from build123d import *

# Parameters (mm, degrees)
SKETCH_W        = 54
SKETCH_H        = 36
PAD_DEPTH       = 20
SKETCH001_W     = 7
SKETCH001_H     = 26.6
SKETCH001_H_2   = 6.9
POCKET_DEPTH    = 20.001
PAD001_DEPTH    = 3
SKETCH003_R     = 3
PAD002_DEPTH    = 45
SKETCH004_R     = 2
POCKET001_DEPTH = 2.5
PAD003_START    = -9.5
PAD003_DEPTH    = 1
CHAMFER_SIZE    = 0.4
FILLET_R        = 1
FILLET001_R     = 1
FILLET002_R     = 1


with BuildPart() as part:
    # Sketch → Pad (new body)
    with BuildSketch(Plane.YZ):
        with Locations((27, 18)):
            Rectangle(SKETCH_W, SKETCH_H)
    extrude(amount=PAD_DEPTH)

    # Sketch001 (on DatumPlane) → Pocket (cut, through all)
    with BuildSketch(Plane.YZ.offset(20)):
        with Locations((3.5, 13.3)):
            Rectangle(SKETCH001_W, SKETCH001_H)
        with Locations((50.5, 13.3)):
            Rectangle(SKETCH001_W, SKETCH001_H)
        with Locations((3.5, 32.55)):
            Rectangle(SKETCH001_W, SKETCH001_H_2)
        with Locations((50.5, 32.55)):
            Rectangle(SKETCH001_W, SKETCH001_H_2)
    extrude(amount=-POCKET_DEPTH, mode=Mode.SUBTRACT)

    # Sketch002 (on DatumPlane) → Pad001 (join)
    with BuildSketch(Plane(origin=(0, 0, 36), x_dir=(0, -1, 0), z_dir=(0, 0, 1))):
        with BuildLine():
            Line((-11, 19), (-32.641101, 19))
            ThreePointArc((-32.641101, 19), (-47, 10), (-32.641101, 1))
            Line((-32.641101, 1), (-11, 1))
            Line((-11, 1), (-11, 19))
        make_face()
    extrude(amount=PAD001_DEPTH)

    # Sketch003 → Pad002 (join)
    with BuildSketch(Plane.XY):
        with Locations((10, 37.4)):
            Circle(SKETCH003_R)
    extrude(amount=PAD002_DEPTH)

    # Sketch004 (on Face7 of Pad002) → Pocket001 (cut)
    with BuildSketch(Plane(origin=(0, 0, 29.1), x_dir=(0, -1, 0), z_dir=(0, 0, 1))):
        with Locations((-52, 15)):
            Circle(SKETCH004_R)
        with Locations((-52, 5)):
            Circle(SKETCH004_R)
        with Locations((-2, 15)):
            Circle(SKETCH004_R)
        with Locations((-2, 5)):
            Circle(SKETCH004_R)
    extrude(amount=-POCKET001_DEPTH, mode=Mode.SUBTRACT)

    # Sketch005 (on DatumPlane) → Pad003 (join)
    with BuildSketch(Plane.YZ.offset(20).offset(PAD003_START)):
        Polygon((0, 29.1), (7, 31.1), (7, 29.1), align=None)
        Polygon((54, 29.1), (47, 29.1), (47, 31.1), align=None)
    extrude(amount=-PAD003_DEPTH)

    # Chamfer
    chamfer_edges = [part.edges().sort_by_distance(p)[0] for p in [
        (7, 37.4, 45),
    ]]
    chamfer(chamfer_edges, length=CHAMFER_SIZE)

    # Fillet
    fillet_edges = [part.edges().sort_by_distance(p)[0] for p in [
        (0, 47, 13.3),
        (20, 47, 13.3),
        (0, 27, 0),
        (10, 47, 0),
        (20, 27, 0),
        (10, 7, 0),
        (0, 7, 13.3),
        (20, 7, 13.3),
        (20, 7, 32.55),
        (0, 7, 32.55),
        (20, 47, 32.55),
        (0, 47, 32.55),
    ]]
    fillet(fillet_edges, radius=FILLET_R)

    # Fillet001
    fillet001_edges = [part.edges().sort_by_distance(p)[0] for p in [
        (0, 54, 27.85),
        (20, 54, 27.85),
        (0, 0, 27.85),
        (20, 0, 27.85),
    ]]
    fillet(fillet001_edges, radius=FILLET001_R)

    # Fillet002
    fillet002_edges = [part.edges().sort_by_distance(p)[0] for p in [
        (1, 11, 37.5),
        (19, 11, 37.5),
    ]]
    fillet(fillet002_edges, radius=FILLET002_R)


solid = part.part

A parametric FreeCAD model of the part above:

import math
import FreeCAD as App
import Part
import Sketcher
Q = App.Units.Quantity


def edges_at(feature, points):
    """Names of the edges that pass closest to the given points."""
    edges = feature.Shape.Edges
    near = lambda p: min(range(len(edges)), key=lambda i: edges[i].distToShape(Part.Vertex(*p))[0])
    return sorted({f"Edge{near(p) + 1}" for p in points})

doc = App.newDocument("Part")
params = doc.addObject("Spreadsheet::Sheet", "Params")
for row, (alias, value) in enumerate([
    ("sketch1_width", "54 mm"),
    ("sketch1_height", "36 mm"),
    ("pad1_length", "20 mm"),
    ("sketch2_width", "7 mm"),
    ("sketch2_height", "26.6 mm"),
    ("sketch2_height2", "6.9 mm"),
    ("sketch3_radius", "10 mm"),
    ("sketch3_width", "18 mm"),
    ("pad2_length", "3 mm"),
    ("sketch4_diameter", "6 mm"),
    ("pad3_length", "45 mm"),
    ("sketch5_diameter", "4 mm"),
    ("pocket2_length", "2.5 mm"),
    ("sketch6_width", "7 mm"),
    ("sketch6_height", "2 mm"),
    ("pad4_length", "1 mm"),
    ("chamfer_size", "0.4 mm"),
    ("fillet_radius", "1 mm"),
    ("fillet2_radius", "1 mm"),
    ("fillet3_radius", "1 mm"),
], start=1):
    params.set(f"A{row}", alias)
    params.set(f"B{row}", "=" + value)
    params.setAlias(f"B{row}", alias)

body = doc.addObject("PartDesign::Body", "Body")

sketch1 = doc.addObject("Sketcher::SketchObject", "Sketch")
body.addObject(sketch1)
sketch1.AttachmentSupport = (doc.YZ_Plane, [""])
sketch1.MapMode = "FlatFace"
sketch1.addGeometry([
    Part.LineSegment(App.Vector(0, 36, 0), App.Vector(0, 0, 0)),
    Part.LineSegment(App.Vector(0, 0, 0), App.Vector(54, 0, 0)),
    Part.LineSegment(App.Vector(54, 0, 0), App.Vector(54, 36, 0)),
    Part.LineSegment(App.Vector(54, 36, 0), App.Vector(0, 36, 0)),
], False)
sketch1.addConstraint([
    Sketcher.Constraint("Coincident", 0, 2, 1, 1),
    Sketcher.Constraint("Coincident", 1, 2, 2, 1),
    Sketcher.Constraint("Coincident", 2, 2, 3, 1),
    Sketcher.Constraint("Coincident", 3, 2, 0, 1),
    Sketcher.Constraint("Vertical", 0),
    Sketcher.Constraint("Horizontal", 1),
    Sketcher.Constraint("Vertical", 2),
    Sketcher.Constraint("Horizontal", 3),
    Sketcher.Constraint("Coincident", 0, 2, -1, 1),
    Sketcher.Constraint("DistanceX", 1, 1, 1, 2, Q("54 mm")),
    Sketcher.Constraint("DistanceY", 0, 2, 0, 1, Q("36 mm")),
])
sketch1.setExpression("Constraints[9]", "Params.sketch1_width")
sketch1.setExpression("Constraints[10]", "Params.sketch1_height")
pad1 = doc.addObject("PartDesign::Pad", "Pad")
body.addObject(pad1)
pad1.Profile = sketch1
pad1.setExpression("Length", "Params.pad1_length")

sketch2 = doc.addObject("Sketcher::SketchObject", "Sketch001")
body.addObject(sketch2)
sketch2.AttachmentSupport = (doc.YZ_Plane, [""])
sketch2.MapMode = "FlatFace"
sketch2.AttachmentOffset = App.Placement(App.Vector(0, 0, 20), App.Rotation())
sketch2.addGeometry([
    Part.LineSegment(App.Vector(0, 26.6, 0), App.Vector(0, 0, 0)),
    Part.LineSegment(App.Vector(0, 0, 0), App.Vector(7, 0, 0)),
    Part.LineSegment(App.Vector(7, 0, 0), App.Vector(7, 26.6, 0)),
    Part.LineSegment(App.Vector(7, 26.6, 0), App.Vector(0, 26.6, 0)),
    Part.LineSegment(App.Vector(47, 26.6, 0), App.Vector(47, 0, 0)),
    Part.LineSegment(App.Vector(47, 0, 0), App.Vector(54, 0, 0)),
    Part.LineSegment(App.Vector(54, 0, 0), App.Vector(54, 26.6, 0)),
    Part.LineSegment(App.Vector(54, 26.6, 0), App.Vector(47, 26.6, 0)),
    Part.LineSegment(App.Vector(0, 36, 0), App.Vector(0, 29.1, 0)),
    Part.LineSegment(App.Vector(0, 29.1, 0), App.Vector(7, 29.1, 0)),
    Part.LineSegment(App.Vector(7, 29.1, 0), App.Vector(7, 36, 0)),
    Part.LineSegment(App.Vector(7, 36, 0), App.Vector(0, 36, 0)),
    Part.LineSegment(App.Vector(47, 36, 0), App.Vector(47, 29.1, 0)),
    Part.LineSegment(App.Vector(47, 29.1, 0), App.Vector(54, 29.1, 0)),
    Part.LineSegment(App.Vector(54, 29.1, 0), App.Vector(54, 36, 0)),
    Part.LineSegment(App.Vector(54, 36, 0), App.Vector(47, 36, 0)),
], False)
sketch2.addConstraint([
    Sketcher.Constraint("Coincident", 0, 2, 1, 1),
    Sketcher.Constraint("Coincident", 1, 2, 2, 1),
    Sketcher.Constraint("Coincident", 2, 2, 3, 1),
    Sketcher.Constraint("Coincident", 3, 2, 0, 1),
    Sketcher.Constraint("Coincident", 4, 2, 5, 1),
    Sketcher.Constraint("Coincident", 5, 2, 6, 1),
    Sketcher.Constraint("Coincident", 6, 2, 7, 1),
    Sketcher.Constraint("Coincident", 7, 2, 4, 1),
    Sketcher.Constraint("Coincident", 8, 2, 9, 1),
    Sketcher.Constraint("Coincident", 9, 2, 10, 1),
    Sketcher.Constraint("Coincident", 10, 2, 11, 1),
    Sketcher.Constraint("Coincident", 11, 2, 8, 1),
    Sketcher.Constraint("Coincident", 12, 2, 13, 1),
    Sketcher.Constraint("Coincident", 13, 2, 14, 1),
    Sketcher.Constraint("Coincident", 14, 2, 15, 1),
    Sketcher.Constraint("Coincident", 15, 2, 12, 1),
    Sketcher.Constraint("Vertical", 0),
    Sketcher.Constraint("Horizontal", 1),
    Sketcher.Constraint("Vertical", 2),
    Sketcher.Constraint("Horizontal", 3),
    Sketcher.Constraint("Vertical", 4),
    Sketcher.Constraint("Horizontal", 5),
    Sketcher.Constraint("Vertical", 6),
    Sketcher.Constraint("Horizontal", 7),
    Sketcher.Constraint("Vertical", 8),
    Sketcher.Constraint("Horizontal", 9),
    Sketcher.Constraint("Vertical", 10),
    Sketcher.Constraint("Horizontal", 11),
    Sketcher.Constraint("Vertical", 12),
    Sketcher.Constraint("Horizontal", 13),
    Sketcher.Constraint("Vertical", 14),
    Sketcher.Constraint("Horizontal", 15),
    Sketcher.Constraint("Coincident", 0, 2, -1, 1),
    Sketcher.Constraint("PointOnObject", 4, 2, -1),
    Sketcher.Constraint("PointOnObject", 8, 2, -2),
    Sketcher.Constraint("Horizontal", 3, 2, 6, 2),
    Sketcher.Constraint("Horizontal", 9, 2, 12, 2),
    Sketcher.Constraint("Horizontal", 11, 2, 14, 2),
    Sketcher.Constraint("Vertical", 2, 2, 9, 2),
    Sketcher.Constraint("Vertical", 7, 2, 12, 2),
    Sketcher.Constraint("Vertical", 6, 2, 13, 2),
    Sketcher.Constraint("Equal", 3, 5),
    Sketcher.Constraint("DistanceX", 1, 1, 1, 2, Q("7 mm")),
    Sketcher.Constraint("DistanceY", 0, 2, 0, 1, Q("26.6 mm")),
    Sketcher.Constraint("DistanceY", 8, 2, 8, 1, Q("6.9 mm")),
    Sketcher.Constraint("DistanceX", -1, 1, 4, 2, Q("47 mm")),
    Sketcher.Constraint("DistanceY", -1, 1, 10, 2, Q("36 mm")),
])
sketch2.setExpression("Constraints[42]", "Params.sketch2_width")
sketch2.setExpression("Constraints[43]", "Params.sketch2_height")
sketch2.setExpression("Constraints[44]", "Params.sketch2_height2")
pocket1 = doc.addObject("PartDesign::Pocket", "Pocket")
body.addObject(pocket1)
pocket1.Profile = sketch2
pocket1.Type = "ThroughAll"

sketch3 = doc.addObject("Sketcher::SketchObject", "Sketch002")
body.addObject(sketch3)
sketch3.AttachmentSupport = (doc.XY_Plane, [""])
sketch3.MapMode = "FlatFace"
sketch3.AttachmentOffset = App.Placement(App.Vector(0, 0, 36), App.Rotation())
sketch3.addGeometry([
    Part.LineSegment(App.Vector(19, 11, 0), App.Vector(19, 32.641101, 0)),
    Part.ArcOfCircle(Part.Circle(App.Vector(10, 37, 0), App.Vector(0, 0, 1), 10), math.radians(-25.841933), math.radians(205.841933)),
    Part.LineSegment(App.Vector(1, 32.641101, 0), App.Vector(1, 11, 0)),
    Part.LineSegment(App.Vector(1, 11, 0), App.Vector(19, 11, 0)),
], False)
sketch3.addConstraint([
    Sketcher.Constraint("Coincident", 0, 2, 1, 1),
    Sketcher.Constraint("Coincident", 1, 2, 2, 1),
    Sketcher.Constraint("Coincident", 2, 2, 3, 1),
    Sketcher.Constraint("Coincident", 3, 2, 0, 1),
    Sketcher.Constraint("Vertical", 0),
    Sketcher.Constraint("Vertical", 2),
    Sketcher.Constraint("Horizontal", 3),
    Sketcher.Constraint("Horizontal", 0, 2, 1, 2),
    Sketcher.Constraint("Radius", 1, Q("10 mm")),
    Sketcher.Constraint("DistanceX", 3, 1, 3, 2, Q("18 mm")),
    Sketcher.Constraint("DistanceX", -1, 1, 1, 3, Q("10 mm")),
    Sketcher.Constraint("DistanceY", -1, 1, 1, 3, Q("37 mm")),
    Sketcher.Constraint("DistanceY", -1, 1, 2, 2, Q("11 mm")),
])
sketch3.setExpression("Constraints[8]", "Params.sketch3_radius")
sketch3.setExpression("Constraints[9]", "Params.sketch3_width")
pad2 = doc.addObject("PartDesign::Pad", "Pad001")
body.addObject(pad2)
pad2.Profile = sketch3
pad2.setExpression("Length", "Params.pad2_length")

sketch4 = doc.addObject("Sketcher::SketchObject", "Sketch003")
body.addObject(sketch4)
sketch4.AttachmentSupport = (doc.XY_Plane, [""])
sketch4.MapMode = "FlatFace"
sketch4.addGeometry(Part.Circle(App.Vector(10, 37.4, 0), App.Vector(0, 0, 1), 3), False)
sketch4.addConstraint([
    Sketcher.Constraint("Diameter", 0, Q("6 mm")),
    Sketcher.Constraint("DistanceX", -1, 1, 0, 3, Q("10 mm")),
    Sketcher.Constraint("DistanceY", -1, 1, 0, 3, Q("37.4 mm")),
])
sketch4.setExpression("Constraints[0]", "Params.sketch4_diameter")
pad3 = doc.addObject("PartDesign::Pad", "Pad002")
body.addObject(pad3)
pad3.Profile = sketch4
pad3.setExpression("Length", "Params.pad3_length")

sketch5 = doc.addObject("Sketcher::SketchObject", "Sketch004")
body.addObject(sketch5)
sketch5.AttachmentSupport = (doc.XY_Plane, [""])
sketch5.MapMode = "FlatFace"
sketch5.AttachmentOffset = App.Placement(App.Vector(0, 0, 29.1), App.Rotation())
sketch5.addGeometry([
    Part.Circle(App.Vector(15, 52, 0), App.Vector(0, 0, 1), 2),
    Part.Circle(App.Vector(5, 52, 0), App.Vector(0, 0, 1), 2),
    Part.Circle(App.Vector(15, 2, 0), App.Vector(0, 0, 1), 2),
    Part.Circle(App.Vector(5, 2, 0), App.Vector(0, 0, 1), 2),
], False)
sketch5.addConstraint([
    Sketcher.Constraint("Equal", 0, 1),
    Sketcher.Constraint("Equal", 1, 2),
    Sketcher.Constraint("Equal", 2, 3),
    Sketcher.Constraint("Horizontal", 0, 3, 1, 3),
    Sketcher.Constraint("Horizontal", 2, 3, 3, 3),
    Sketcher.Constraint("Vertical", 0, 3, 2, 3),
    Sketcher.Constraint("Vertical", 1, 3, 3, 3),
    Sketcher.Constraint("Diameter", 0, Q("4 mm")),
    Sketcher.Constraint("DistanceX", -1, 1, 0, 3, Q("15 mm")),
    Sketcher.Constraint("DistanceY", -1, 1, 0, 3, Q("52 mm")),
    Sketcher.Constraint("DistanceX", -1, 1, 1, 3, Q("5 mm")),
    Sketcher.Constraint("DistanceY", -1, 1, 2, 3, Q("2 mm")),
])
sketch5.setExpression("Constraints[7]", "Params.sketch5_diameter")
pocket2 = doc.addObject("PartDesign::Pocket", "Pocket001")
body.addObject(pocket2)
pocket2.Profile = sketch5
pocket2.setExpression("Length", "Params.pocket2_length")

sketch6 = doc.addObject("Sketcher::SketchObject", "Sketch005")
body.addObject(sketch6)
sketch6.AttachmentSupport = (doc.YZ_Plane, [""])
sketch6.MapMode = "FlatFace"
sketch6.AttachmentOffset = App.Placement(App.Vector(0, 0, 10.5), App.Rotation())
sketch6.addGeometry([
    Part.LineSegment(App.Vector(7, 31.1, 0), App.Vector(0, 29.1, 0)),
    Part.LineSegment(App.Vector(0, 29.1, 0), App.Vector(7, 29.1, 0)),
    Part.LineSegment(App.Vector(7, 29.1, 0), App.Vector(7, 31.1, 0)),
    Part.LineSegment(App.Vector(47, 29.1, 0), App.Vector(54, 29.1, 0)),
    Part.LineSegment(App.Vector(54, 29.1, 0), App.Vector(47, 31.1, 0)),
    Part.LineSegment(App.Vector(47, 31.1, 0), App.Vector(47, 29.1, 0)),
], False)
sketch6.addConstraint([
    Sketcher.Constraint("Coincident", 0, 2, 1, 1),
    Sketcher.Constraint("Coincident", 1, 2, 2, 1),
    Sketcher.Constraint("Coincident", 2, 2, 0, 1),
    Sketcher.Constraint("Coincident", 3, 2, 4, 1),
    Sketcher.Constraint("Coincident", 4, 2, 5, 1),
    Sketcher.Constraint("Coincident", 5, 2, 3, 1),
    Sketcher.Constraint("Horizontal", 1),
    Sketcher.Constraint("Vertical", 2),
    Sketcher.Constraint("Horizontal", 3),
    Sketcher.Constraint("Vertical", 5),
    Sketcher.Constraint("PointOnObject", 0, 2, -2),
    Sketcher.Constraint("Horizontal", 1, 2, 3, 2),
    Sketcher.Constraint("Horizontal", 2, 2, 4, 2),
    Sketcher.Constraint("Equal", 1, 3),
    Sketcher.Constraint("DistanceX", 1, 1, 1, 2, Q("7 mm")),
    Sketcher.Constraint("DistanceY", 2, 1, 2, 2, Q("2 mm")),
    Sketcher.Constraint("DistanceX", -1, 1, 3, 2, Q("54 mm")),
    Sketcher.Constraint("DistanceY", -1, 1, 0, 2, Q("29.1 mm")),
])
sketch6.setExpression("Constraints[14]", "Params.sketch6_width")
sketch6.setExpression("Constraints[15]", "Params.sketch6_height")
pad4 = doc.addObject("PartDesign::Pad", "Pad003")
body.addObject(pad4)
pad4.Profile = sketch6
pad4.setExpression("Length", "Params.pad4_length")
pad4.Reversed = True
doc.recompute()

chamfer = doc.addObject("PartDesign::Chamfer", "Chamfer")
body.addObject(chamfer)
chamfer.Base = (pad4, edges_at(pad4, [(7, 37.4, 45)]))
chamfer.setExpression("Size", "Params.chamfer_size")
doc.recompute()

fillet = doc.addObject("PartDesign::Fillet", "Fillet")
body.addObject(fillet)
fillet.Base = (chamfer, edges_at(chamfer, [
    (0, 47, 13.3),
    (20, 47, 13.3),
    (0, 27, 0),
    (10, 47, 0),
    (20, 27, 0),
    (10, 7, 0),
    (0, 7, 13.3),
    (20, 7, 13.3),
    (20, 7, 32.55),
    (0, 7, 32.55),
    (20, 47, 32.55),
    (0, 47, 32.55),
]))
fillet.setExpression("Radius", "Params.fillet_radius")
doc.recompute()

fillet2 = doc.addObject("PartDesign::Fillet", "Fillet001")
body.addObject(fillet2)
fillet2.Base = (fillet, edges_at(fillet, [
    (0, 54, 27.85),
    (20, 54, 27.85),
    (0, 0, 27.85),
    (20, 0, 27.85),
]))
fillet2.setExpression("Radius", "Params.fillet2_radius")
doc.recompute()

fillet3 = doc.addObject("PartDesign::Fillet", "Fillet002")
body.addObject(fillet3)
fillet3.Base = (fillet2, edges_at(fillet2, [(1, 11, 37.5), (19, 11, 37.5)]))
fillet3.setExpression("Radius", "Params.fillet3_radius")

doc.recompute()
